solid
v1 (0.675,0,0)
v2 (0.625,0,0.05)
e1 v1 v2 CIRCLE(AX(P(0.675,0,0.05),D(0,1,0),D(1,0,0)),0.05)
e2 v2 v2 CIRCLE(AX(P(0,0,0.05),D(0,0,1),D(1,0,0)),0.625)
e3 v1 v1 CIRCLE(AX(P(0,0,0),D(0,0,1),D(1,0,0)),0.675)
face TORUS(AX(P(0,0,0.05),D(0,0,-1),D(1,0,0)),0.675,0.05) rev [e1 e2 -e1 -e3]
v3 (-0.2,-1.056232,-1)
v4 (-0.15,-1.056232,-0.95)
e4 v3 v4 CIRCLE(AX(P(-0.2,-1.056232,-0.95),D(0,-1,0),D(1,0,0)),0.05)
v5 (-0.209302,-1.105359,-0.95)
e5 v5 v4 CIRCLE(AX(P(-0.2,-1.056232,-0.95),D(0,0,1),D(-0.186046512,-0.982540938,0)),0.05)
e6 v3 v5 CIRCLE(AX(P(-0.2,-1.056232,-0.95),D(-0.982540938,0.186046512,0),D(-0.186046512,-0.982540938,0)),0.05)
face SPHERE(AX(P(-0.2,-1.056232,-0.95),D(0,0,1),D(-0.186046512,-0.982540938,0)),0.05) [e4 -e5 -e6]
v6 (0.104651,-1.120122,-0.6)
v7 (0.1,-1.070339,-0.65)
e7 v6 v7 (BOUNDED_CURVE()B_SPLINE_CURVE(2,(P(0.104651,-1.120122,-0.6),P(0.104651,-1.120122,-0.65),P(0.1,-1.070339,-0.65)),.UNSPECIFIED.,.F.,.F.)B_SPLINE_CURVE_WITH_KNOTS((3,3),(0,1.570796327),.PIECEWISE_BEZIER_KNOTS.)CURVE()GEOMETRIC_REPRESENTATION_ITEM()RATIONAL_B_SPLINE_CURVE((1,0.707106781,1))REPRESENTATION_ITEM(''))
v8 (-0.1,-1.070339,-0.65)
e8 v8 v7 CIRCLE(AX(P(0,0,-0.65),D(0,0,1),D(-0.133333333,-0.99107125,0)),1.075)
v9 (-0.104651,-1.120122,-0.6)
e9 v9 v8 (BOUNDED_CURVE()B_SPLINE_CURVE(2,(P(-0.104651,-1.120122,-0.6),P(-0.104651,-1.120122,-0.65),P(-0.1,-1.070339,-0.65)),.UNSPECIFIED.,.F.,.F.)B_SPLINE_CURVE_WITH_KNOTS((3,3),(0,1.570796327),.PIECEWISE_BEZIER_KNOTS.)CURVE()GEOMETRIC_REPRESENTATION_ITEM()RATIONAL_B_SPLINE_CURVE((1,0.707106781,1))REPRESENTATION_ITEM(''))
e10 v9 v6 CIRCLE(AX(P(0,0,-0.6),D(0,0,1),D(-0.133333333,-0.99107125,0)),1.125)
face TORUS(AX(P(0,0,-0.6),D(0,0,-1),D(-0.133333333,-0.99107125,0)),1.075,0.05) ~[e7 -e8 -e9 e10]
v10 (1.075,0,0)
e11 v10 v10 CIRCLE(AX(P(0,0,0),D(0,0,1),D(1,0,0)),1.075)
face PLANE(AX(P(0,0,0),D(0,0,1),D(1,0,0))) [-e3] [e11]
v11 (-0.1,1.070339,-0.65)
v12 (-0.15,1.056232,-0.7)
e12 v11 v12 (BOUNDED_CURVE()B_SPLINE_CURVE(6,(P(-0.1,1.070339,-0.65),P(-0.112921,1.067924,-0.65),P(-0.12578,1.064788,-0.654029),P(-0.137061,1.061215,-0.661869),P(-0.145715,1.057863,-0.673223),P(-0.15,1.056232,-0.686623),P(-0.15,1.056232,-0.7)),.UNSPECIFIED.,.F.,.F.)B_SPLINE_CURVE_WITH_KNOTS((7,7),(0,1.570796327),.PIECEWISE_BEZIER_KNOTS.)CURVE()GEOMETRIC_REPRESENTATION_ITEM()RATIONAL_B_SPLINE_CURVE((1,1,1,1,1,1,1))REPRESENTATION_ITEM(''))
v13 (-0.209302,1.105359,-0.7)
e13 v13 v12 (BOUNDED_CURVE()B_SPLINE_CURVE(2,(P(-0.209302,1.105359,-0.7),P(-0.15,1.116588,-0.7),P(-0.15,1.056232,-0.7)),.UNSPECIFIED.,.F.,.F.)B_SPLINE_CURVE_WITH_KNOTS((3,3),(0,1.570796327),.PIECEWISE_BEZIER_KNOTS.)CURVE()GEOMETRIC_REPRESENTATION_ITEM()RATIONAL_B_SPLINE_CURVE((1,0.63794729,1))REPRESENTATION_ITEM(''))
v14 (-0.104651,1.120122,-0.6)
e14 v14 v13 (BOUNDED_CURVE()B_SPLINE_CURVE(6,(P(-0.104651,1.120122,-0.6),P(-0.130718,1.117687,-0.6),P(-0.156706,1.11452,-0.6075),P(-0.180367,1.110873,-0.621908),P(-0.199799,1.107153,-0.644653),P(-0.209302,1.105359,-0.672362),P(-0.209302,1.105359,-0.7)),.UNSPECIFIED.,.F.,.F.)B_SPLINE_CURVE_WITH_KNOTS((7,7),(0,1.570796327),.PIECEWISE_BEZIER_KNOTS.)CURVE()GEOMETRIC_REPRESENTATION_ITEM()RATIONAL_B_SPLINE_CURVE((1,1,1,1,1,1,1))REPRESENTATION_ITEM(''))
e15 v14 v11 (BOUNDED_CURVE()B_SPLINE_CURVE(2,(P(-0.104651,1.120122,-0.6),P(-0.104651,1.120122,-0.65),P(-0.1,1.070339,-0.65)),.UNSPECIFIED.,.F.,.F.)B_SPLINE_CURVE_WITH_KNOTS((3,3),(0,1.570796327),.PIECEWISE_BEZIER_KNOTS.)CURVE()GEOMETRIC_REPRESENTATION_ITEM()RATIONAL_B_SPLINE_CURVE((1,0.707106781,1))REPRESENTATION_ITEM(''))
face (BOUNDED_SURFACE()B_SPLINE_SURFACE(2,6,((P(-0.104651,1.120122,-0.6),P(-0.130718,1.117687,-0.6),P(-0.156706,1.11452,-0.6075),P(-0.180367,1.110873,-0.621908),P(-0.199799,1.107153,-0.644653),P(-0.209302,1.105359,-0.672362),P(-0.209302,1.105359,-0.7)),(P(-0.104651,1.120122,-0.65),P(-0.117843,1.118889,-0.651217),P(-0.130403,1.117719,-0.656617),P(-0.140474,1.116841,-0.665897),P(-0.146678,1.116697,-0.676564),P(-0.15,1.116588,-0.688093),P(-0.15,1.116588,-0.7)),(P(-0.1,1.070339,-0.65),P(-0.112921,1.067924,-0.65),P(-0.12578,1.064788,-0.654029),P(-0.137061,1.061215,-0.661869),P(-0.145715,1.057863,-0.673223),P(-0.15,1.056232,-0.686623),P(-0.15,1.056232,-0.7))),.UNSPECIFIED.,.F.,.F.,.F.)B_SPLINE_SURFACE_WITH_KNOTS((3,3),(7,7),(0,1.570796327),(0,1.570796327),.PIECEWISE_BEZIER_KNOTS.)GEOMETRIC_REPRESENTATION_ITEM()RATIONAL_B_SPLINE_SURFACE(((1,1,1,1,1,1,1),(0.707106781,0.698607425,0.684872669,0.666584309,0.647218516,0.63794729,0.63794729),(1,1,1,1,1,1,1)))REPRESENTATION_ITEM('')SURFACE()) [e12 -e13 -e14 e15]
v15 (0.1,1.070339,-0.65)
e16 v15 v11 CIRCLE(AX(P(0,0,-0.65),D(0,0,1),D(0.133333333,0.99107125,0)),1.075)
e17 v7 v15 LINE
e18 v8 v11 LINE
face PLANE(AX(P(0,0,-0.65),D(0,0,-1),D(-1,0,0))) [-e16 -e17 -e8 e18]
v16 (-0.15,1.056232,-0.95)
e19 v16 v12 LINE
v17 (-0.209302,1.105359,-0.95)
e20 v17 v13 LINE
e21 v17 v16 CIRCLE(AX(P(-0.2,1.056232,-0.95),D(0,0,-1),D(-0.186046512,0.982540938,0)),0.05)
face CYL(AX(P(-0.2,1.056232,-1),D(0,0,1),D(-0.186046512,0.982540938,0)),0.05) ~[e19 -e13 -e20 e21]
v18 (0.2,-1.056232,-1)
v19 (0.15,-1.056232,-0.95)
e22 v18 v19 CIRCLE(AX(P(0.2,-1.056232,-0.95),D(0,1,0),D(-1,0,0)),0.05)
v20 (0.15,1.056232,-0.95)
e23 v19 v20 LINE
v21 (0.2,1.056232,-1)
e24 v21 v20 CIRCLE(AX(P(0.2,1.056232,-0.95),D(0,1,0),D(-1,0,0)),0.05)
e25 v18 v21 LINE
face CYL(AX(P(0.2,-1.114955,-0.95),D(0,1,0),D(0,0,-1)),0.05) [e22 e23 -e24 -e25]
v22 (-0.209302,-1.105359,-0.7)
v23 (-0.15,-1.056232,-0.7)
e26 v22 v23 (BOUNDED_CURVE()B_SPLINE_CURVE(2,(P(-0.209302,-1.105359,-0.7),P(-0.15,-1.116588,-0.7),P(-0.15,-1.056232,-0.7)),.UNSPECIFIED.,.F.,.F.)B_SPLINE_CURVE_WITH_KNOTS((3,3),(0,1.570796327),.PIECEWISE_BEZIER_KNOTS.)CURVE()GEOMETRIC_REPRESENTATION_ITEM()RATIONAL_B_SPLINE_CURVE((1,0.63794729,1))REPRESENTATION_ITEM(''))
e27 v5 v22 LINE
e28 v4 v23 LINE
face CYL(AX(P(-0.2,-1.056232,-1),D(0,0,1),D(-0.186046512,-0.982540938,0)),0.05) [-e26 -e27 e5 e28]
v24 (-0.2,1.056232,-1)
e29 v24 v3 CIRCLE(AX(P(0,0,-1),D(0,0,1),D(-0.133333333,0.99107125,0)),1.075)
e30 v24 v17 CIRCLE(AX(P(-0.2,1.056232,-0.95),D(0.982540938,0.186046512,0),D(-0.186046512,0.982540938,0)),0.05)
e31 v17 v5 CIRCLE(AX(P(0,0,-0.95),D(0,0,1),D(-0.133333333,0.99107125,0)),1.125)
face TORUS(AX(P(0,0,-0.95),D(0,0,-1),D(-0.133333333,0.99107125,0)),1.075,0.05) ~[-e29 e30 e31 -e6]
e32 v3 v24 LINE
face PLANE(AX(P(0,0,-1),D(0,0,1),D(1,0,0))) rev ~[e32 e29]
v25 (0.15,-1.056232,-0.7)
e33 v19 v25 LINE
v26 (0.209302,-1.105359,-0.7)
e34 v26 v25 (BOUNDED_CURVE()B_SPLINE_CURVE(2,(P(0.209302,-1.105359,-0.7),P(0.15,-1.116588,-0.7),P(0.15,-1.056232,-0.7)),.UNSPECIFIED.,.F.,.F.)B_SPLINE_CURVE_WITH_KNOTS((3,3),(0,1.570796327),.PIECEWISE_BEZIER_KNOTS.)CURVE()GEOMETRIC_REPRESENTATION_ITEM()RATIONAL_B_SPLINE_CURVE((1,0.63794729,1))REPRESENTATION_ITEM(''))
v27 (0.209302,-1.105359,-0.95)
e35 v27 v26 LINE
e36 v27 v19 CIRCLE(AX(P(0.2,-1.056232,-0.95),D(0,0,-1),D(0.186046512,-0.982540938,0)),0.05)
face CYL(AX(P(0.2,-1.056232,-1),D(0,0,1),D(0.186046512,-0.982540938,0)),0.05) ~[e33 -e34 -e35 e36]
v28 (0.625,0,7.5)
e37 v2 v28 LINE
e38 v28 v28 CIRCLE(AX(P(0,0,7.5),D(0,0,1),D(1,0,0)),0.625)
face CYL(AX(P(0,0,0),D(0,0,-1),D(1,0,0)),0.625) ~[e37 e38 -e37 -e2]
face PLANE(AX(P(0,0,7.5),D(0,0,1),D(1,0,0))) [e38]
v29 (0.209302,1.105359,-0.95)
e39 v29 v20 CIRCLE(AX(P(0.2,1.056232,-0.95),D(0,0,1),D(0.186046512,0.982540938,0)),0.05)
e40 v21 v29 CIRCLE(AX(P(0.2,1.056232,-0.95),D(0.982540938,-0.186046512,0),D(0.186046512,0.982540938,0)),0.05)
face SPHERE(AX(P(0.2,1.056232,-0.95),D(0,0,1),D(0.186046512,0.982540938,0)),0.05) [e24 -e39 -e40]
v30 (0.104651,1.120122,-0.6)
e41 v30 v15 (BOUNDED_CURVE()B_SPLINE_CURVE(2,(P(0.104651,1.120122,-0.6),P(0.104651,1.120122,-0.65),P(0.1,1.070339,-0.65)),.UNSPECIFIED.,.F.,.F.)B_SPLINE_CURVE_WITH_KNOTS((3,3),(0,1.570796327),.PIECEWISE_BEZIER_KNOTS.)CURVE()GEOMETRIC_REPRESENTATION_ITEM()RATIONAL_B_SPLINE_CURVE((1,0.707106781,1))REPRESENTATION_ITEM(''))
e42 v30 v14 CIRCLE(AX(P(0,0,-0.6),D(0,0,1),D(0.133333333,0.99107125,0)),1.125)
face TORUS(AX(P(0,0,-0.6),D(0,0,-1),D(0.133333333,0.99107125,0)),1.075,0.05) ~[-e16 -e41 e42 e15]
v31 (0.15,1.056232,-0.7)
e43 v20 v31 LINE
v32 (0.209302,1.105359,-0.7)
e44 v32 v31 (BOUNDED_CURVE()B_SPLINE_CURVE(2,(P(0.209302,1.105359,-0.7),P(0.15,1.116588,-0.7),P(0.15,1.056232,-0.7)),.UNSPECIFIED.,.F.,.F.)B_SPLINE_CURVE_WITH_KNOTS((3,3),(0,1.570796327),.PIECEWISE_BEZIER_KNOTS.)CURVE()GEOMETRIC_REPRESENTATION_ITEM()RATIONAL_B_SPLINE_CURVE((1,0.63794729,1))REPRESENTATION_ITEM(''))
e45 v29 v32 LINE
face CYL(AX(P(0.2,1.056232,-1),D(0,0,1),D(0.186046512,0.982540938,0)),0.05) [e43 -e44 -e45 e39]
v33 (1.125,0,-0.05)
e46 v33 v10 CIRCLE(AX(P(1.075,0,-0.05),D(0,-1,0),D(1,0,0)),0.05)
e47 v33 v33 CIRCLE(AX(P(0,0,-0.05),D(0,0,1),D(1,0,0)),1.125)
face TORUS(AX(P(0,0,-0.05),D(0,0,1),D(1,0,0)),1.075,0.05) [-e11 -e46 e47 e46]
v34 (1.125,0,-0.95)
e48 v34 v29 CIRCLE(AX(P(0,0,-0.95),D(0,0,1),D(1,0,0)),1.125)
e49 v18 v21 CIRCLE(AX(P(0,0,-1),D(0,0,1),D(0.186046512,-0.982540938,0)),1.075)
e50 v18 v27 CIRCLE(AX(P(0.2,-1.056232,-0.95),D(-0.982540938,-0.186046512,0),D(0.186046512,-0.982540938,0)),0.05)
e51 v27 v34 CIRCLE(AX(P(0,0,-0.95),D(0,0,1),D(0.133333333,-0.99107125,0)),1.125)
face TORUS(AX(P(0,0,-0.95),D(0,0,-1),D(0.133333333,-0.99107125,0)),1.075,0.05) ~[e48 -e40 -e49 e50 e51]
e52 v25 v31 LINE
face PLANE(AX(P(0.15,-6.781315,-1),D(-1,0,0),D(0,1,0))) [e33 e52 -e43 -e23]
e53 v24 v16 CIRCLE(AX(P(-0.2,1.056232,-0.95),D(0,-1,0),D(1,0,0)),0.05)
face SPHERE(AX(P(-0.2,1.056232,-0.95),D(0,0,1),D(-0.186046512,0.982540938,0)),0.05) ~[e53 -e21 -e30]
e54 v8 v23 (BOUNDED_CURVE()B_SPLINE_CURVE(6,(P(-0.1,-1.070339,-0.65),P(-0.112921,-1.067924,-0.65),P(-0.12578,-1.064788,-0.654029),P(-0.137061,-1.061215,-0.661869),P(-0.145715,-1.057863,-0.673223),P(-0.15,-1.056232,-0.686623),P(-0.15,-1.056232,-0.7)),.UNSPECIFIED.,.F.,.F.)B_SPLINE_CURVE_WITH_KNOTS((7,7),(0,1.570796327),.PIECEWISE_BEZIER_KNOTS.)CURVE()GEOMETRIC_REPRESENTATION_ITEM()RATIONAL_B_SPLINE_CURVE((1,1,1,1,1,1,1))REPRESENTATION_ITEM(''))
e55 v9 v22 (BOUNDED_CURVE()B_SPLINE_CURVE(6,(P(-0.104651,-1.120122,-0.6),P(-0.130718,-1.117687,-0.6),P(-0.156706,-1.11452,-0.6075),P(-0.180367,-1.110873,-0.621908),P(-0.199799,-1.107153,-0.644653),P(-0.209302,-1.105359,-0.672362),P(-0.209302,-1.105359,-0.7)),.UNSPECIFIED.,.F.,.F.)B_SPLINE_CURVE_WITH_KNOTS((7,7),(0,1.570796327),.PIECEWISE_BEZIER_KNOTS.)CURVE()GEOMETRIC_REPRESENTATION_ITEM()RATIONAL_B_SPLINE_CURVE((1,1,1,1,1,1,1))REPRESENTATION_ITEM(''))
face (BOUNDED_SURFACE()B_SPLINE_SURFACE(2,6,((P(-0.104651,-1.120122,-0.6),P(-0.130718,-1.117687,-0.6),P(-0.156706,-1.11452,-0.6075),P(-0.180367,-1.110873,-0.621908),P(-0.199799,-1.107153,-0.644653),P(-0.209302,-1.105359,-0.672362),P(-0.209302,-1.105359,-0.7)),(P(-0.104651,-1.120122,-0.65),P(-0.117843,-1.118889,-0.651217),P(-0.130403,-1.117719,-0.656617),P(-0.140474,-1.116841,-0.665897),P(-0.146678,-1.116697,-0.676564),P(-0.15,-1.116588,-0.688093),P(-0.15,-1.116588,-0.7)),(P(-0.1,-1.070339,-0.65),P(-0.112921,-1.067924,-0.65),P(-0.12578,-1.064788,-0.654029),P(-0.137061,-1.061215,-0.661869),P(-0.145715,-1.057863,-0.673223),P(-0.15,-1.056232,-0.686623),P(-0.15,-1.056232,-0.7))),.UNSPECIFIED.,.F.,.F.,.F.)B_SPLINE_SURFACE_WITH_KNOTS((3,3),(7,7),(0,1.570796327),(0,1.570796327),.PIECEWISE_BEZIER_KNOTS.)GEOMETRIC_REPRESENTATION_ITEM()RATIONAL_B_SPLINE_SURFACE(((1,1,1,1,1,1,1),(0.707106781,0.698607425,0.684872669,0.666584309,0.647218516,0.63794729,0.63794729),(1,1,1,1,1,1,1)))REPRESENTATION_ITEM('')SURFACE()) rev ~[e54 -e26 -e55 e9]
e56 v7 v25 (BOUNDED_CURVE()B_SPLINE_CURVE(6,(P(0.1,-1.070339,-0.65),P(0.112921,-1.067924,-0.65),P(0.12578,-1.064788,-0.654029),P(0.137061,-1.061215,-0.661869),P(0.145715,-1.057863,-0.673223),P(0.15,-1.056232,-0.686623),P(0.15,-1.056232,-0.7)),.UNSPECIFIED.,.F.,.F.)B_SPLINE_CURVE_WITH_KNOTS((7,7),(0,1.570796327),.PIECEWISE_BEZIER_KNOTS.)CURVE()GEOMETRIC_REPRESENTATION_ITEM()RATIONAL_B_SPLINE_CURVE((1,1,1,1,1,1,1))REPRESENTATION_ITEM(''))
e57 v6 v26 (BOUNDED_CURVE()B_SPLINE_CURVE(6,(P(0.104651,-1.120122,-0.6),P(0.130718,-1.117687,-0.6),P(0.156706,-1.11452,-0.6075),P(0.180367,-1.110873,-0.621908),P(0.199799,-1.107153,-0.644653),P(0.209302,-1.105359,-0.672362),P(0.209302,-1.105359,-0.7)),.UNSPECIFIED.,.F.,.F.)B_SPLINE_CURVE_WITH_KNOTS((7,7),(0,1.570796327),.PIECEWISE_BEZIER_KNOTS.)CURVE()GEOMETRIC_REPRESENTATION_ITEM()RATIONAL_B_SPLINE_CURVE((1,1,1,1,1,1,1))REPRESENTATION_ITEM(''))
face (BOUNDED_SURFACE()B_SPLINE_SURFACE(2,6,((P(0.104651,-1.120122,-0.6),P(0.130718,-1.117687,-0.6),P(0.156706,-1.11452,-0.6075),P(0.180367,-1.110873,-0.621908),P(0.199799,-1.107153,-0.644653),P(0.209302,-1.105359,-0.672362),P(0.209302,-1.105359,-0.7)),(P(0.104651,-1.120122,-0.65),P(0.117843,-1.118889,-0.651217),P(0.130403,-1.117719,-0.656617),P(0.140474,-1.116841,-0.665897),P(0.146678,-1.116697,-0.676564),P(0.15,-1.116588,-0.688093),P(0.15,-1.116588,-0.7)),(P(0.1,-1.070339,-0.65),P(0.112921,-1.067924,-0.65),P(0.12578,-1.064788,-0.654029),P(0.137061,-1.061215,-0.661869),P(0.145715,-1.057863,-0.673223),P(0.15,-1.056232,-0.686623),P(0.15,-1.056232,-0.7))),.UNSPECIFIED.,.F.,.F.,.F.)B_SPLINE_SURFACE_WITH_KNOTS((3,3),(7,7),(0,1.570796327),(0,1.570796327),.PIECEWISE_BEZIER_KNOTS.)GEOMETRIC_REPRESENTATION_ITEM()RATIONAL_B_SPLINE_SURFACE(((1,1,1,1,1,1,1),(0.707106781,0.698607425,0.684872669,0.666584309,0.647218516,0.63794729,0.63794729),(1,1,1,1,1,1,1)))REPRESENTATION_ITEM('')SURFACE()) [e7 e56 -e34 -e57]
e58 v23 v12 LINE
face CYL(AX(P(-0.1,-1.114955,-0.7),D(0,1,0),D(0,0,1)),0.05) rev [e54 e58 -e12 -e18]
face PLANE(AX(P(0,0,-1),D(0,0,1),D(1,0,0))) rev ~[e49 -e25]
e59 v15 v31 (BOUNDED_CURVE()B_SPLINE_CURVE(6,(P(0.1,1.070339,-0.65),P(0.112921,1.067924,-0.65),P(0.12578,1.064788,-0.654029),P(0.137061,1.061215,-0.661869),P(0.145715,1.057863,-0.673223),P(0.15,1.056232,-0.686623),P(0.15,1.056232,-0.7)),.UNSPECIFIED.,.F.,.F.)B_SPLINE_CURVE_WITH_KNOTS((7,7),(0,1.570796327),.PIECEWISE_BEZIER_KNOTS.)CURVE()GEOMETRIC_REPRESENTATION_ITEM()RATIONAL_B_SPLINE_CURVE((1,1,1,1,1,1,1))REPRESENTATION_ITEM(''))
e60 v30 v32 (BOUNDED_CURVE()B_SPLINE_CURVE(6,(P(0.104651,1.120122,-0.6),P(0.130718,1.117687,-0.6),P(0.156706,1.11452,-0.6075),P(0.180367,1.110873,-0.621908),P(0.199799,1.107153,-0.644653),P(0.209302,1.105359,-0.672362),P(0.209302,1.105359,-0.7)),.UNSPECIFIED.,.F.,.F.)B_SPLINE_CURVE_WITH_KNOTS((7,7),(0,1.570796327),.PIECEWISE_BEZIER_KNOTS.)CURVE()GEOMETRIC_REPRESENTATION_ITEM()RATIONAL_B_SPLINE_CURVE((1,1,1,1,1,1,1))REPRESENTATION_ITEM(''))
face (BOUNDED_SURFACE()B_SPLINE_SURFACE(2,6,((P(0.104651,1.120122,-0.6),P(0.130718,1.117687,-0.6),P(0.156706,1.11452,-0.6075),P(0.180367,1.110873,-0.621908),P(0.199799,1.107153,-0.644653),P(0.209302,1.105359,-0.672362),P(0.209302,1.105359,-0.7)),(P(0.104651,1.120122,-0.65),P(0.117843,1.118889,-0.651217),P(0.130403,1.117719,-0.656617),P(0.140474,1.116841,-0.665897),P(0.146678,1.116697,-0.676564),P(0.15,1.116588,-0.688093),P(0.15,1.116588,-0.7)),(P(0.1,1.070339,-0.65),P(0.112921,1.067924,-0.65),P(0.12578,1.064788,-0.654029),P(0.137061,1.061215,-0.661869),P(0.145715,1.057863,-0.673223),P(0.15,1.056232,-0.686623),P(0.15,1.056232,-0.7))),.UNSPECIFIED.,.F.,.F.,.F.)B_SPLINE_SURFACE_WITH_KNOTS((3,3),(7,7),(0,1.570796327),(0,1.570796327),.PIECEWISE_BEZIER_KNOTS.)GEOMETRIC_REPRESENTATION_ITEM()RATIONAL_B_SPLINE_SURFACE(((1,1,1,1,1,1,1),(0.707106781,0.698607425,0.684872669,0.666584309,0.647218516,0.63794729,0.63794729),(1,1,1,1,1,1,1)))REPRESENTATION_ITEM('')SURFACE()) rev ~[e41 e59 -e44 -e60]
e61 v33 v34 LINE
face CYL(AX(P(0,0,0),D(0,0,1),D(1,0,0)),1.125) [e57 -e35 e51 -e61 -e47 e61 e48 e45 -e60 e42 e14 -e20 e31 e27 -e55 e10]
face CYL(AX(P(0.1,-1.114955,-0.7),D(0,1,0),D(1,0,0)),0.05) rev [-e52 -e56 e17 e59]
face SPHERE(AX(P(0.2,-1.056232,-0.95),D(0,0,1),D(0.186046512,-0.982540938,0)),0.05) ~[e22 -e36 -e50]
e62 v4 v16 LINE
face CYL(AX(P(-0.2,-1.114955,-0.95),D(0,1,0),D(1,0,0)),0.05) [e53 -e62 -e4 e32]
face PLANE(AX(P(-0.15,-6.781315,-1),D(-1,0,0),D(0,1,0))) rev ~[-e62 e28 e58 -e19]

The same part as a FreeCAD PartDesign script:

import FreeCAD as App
import Part
import Sketcher


def edges_at(feature, points):
    """Names of the edges that pass closest to the given points."""
    edges = feature.Shape.Edges
    near = lambda p: min(range(len(edges)), key=lambda i: edges[i].distToShape(Part.Vertex(*p))[0])
    return sorted({f"Edge{near(p) + 1}" for p in points})


def add_polygon(sketch, points):
    """Adds a closed chain of lines whose ends are joined by coincident constraints."""
    first, n = sketch.GeometryCount, len(points)
    for a, b in zip(points, points[1:] + points[:1]):
        sketch.addGeometry(Part.LineSegment(App.Vector(*a, 0), App.Vector(*b, 0)), False)
    for i in range(n):
        sketch.addConstraint(Sketcher.Constraint("Coincident", first + i, 2, first + (i + 1) % n, 1))

doc = App.newDocument("Part")
params = doc.addObject("Spreadsheet::Sheet", "Params")
for row, (alias, value) in enumerate([
    ("sketch1_diameter", "1.25 mm"),
    ("pad1_length", "7.5 mm"),
    ("sketch2_diameter", "2.25 mm"),
    ("pad2_length", "1 mm"),
    ("sketch3_width", "0.3 mm"),
    ("pocket1_length", "0.35 mm"),
    ("fillet_radius", "0.05 mm"),
    ("fillet2_radius", "0.05 mm"),
], start=1):
    params.set(f"A{row}", alias)
    params.set(f"B{row}", "=" + value)
    params.setAlias(f"B{row}", alias)

body = doc.addObject("PartDesign::Body", "Body")

# Sketch on XY plane
sketch1 = doc.addObject("Sketcher::SketchObject", "Sketch")
body.addObject(sketch1)
sketch1.AttachmentSupport = (doc.XY_Plane, [""])
sketch1.MapMode = "FlatFace"
sketch1.addGeometry(Part.Circle(App.Vector(0, 0, 0), App.Vector(0, 0, 1), 0.6), False)
sketch1.addConstraint([
    Sketcher.Constraint("Coincident", 0, 3, -1, 1),
    Sketcher.Constraint("Diameter", 0, 1.25),
])
sketch1.setExpression("Constraints[1]", "Params.sketch1_diameter")
pad1 = doc.addObject("PartDesign::Pad", "Pad")
body.addObject(pad1)
pad1.Profile = sketch1
pad1.setExpression("Length", "Params.pad1_length")

# Sketch on XY plane
sketch2 = doc.addObject("Sketcher::SketchObject", "Sketch001")
body.addObject(sketch2)
sketch2.AttachmentSupport = (doc.XY_Plane, [""])
sketch2.MapMode = "FlatFace"
sketch2.addGeometry(Part.Circle(App.Vector(0, 0, 0), App.Vector(0, 0, 1), 1.1), False)
sketch2.addConstraint([
    Sketcher.Constraint("Coincident", 0, 3, -1, 1),
    Sketcher.Constraint("Diameter", 0, 2.25),
])
sketch2.setExpression("Constraints[1]", "Params.sketch2_diameter")
pad2 = doc.addObject("PartDesign::Pad", "Pad001")
body.addObject(pad2)
pad2.Profile = sketch2
pad2.setExpression("Length", "Params.pad2_length")
pad2.Reversed = True

# Sketch on XY plane
sketch3 = doc.addObject("Sketcher::SketchObject", "Sketch002")
body.addObject(sketch3)
sketch3.AttachmentSupport = (doc.XY_Plane, [""])
sketch3.MapMode = "FlatFace"
sketch3.AttachmentOffset = App.Placement(App.Vector(0, 0, -1), App.Rotation())
add_polygon(sketch3, [(0.15, 6.78), (0.15, -6.78), (-0.15, -6.78), (-0.15, 6.78)])  # lines 0-3
sketch3.addConstraint([
    Sketcher.Constraint("Vertical", 0),
    Sketcher.Constraint("Horizontal", 1),
    Sketcher.Constraint("Vertical", 2),
    Sketcher.Constraint("Horizontal", 3),
    Sketcher.Constraint("Symmetric", 0, 2, 2, 2, -1, 1),
    Sketcher.Constraint("DistanceX", 1, 2, 1, 1, 0.3),
    Sketcher.Constraint("DistanceY", 0, 2, 0, 1, 13.56263),
])
sketch3.setExpression("Constraints[9]", "Params.sketch3_width")
pocket1 = doc.addObject("PartDesign::Pocket", "Pocket")
body.addObject(pocket1)
pocket1.Profile = sketch3
pocket1.setExpression("Length", "Params.pocket1_length")
pocket1.Reversed = True
doc.recompute()

fillet = doc.addObject("PartDesign::Fillet", "Fillet")
body.addObject(fillet)
fillet.Base = (pocket1, edges_at(pocket1, [
    (0.847, -0.741, -1),
    (-0.15, 0, -1),
    (0.15, 0, -1),
    (0, 1.125, -0.65),
    (0, -1.125, -0.65),
    (0.15, 1.115, -0.825),
    (0.15, -1.115, -0.825),
    (-0.15, -1.115, -0.825),
    (-0.15, 1.115, -0.825),
    (0.15, 0, -0.65),
    (-0.15, 0, -0.65),
    (-1.125, 0, -1),
]))
fillet.setExpression("Radius", "Params.fillet_radius")
doc.recompute()

fillet2 = doc.addObject("PartDesign::Fillet", "Fillet001")
body.addObject(fillet2)
fillet2.Base = (fillet, edges_at(fillet, [(-0.625, 0, 0), (-1.125, 0, 0)]))
fillet2.setExpression("Radius", "Params.fillet2_radius")

doc.recompute()
